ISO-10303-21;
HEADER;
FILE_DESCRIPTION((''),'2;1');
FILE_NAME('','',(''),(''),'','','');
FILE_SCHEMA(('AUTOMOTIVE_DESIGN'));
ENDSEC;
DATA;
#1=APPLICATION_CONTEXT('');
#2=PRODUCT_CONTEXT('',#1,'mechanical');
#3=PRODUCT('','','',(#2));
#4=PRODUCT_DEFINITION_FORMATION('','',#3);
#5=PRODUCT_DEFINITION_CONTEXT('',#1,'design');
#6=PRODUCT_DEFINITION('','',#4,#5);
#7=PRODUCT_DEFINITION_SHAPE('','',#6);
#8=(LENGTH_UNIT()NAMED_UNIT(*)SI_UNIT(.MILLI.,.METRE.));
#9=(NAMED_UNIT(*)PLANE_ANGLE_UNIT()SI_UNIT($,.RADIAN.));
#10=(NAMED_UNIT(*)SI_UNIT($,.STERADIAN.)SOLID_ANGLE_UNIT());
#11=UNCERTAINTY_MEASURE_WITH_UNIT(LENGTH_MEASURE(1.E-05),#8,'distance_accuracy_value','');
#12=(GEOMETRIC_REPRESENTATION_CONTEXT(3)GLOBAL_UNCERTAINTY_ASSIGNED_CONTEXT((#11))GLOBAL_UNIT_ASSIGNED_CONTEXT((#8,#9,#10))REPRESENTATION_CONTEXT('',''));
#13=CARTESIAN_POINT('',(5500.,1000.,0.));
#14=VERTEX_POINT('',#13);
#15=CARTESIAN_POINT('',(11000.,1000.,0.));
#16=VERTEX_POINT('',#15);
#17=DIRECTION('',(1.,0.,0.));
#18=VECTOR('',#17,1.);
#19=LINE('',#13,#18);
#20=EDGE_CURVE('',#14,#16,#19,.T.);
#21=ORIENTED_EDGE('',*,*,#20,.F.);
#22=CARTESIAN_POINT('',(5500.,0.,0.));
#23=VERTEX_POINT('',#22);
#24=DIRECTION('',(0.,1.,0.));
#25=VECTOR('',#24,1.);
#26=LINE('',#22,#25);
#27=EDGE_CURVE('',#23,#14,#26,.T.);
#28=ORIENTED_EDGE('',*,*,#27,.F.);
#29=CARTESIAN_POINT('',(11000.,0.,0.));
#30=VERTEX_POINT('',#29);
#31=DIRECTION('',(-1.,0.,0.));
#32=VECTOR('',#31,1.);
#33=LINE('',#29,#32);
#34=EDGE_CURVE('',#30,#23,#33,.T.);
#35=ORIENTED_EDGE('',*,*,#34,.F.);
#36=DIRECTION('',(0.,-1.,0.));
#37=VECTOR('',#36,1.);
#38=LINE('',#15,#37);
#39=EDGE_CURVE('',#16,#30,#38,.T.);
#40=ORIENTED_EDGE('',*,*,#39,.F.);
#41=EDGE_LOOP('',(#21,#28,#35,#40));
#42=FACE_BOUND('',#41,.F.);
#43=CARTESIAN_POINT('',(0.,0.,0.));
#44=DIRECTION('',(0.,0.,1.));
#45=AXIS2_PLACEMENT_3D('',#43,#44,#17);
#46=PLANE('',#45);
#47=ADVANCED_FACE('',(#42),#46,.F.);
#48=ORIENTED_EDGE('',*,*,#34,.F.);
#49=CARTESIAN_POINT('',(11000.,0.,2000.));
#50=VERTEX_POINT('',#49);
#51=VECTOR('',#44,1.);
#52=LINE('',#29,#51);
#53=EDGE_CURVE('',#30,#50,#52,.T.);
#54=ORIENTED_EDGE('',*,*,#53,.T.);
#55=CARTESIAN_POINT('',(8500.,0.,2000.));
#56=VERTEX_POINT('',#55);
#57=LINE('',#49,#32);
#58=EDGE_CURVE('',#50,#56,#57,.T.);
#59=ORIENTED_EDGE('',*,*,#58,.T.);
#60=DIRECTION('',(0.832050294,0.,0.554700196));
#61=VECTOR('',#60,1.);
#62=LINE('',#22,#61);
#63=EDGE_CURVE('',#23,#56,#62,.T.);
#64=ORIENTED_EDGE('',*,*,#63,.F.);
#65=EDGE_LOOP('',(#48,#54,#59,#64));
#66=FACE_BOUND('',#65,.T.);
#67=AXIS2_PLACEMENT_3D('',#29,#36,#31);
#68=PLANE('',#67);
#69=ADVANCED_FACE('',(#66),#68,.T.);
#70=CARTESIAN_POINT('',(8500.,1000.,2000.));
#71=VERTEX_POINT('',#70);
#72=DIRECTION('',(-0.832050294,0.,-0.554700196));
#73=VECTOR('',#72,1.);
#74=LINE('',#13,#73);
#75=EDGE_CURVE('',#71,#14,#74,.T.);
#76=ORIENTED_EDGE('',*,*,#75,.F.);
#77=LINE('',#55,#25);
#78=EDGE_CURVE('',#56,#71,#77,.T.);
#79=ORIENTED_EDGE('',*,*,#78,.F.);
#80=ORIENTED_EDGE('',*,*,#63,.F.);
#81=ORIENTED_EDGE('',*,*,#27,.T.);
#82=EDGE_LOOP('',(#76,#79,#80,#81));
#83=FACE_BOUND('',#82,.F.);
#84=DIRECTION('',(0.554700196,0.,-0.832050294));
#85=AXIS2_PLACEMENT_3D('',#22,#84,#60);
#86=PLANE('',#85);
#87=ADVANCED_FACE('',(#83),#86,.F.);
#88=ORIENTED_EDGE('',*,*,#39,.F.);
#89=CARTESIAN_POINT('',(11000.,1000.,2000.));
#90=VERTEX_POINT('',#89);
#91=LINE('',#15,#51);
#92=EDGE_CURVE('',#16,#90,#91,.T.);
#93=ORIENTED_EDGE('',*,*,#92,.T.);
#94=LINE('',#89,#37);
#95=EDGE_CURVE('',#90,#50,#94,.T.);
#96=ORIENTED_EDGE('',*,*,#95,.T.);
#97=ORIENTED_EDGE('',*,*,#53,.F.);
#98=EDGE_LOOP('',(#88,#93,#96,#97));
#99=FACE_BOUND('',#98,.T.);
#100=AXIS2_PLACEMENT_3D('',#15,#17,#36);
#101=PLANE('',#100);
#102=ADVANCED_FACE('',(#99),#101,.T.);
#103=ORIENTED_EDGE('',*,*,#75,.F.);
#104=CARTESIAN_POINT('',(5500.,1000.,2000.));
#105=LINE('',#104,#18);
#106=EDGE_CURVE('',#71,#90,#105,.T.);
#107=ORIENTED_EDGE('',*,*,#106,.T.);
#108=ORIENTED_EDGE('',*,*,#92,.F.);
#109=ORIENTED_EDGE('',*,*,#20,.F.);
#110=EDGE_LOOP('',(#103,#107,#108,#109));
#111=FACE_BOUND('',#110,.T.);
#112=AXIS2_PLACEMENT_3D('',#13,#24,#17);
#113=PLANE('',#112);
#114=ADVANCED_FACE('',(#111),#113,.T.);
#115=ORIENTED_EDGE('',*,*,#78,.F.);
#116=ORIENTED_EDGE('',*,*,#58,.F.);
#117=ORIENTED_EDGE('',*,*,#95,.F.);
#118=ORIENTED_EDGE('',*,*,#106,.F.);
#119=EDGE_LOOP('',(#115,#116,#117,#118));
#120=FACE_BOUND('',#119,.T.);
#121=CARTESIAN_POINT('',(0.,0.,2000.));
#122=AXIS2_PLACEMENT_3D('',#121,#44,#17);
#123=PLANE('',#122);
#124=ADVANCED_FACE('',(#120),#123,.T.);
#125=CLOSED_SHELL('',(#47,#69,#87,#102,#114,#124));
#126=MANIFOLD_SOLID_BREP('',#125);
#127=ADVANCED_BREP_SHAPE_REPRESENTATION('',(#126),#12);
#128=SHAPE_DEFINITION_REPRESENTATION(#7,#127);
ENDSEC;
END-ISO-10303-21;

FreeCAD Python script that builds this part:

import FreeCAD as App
import Part
import Sketcher

V = App.Vector


def add_polygon(sketch, points):
    """Adds a closed chain of lines whose ends are joined by coincident constraints."""
    first, n = sketch.GeometryCount, len(points)
    for a, b in zip(points, points[1:] + points[:1]):
        sketch.addGeometry(Part.LineSegment(App.Vector(*a, 0), App.Vector(*b, 0)), False)
    for i in range(n):
        sketch.addConstraint(Sketcher.Constraint("Coincident", first + i, 2, first + (i + 1) % n, 1))

doc = App.newDocument("Part")
params = doc.addObject("Spreadsheet::Sheet", "Params")
for row, (alias, value) in enumerate([
    ("sketch1_width", "5500 mm"),
    ("sketch1_height", "1000 mm"),
    ("pad1_length", "2000 mm"),
    ("sketch2_width", "3000 mm"),
    ("sketch2_height", "2000 mm"),
], start=1):
    params.set(f"A{row}", alias)
    params.set(f"B{row}", "=" + value)
    params.setAlias(f"B{row}", alias)

body = doc.addObject("PartDesign::Body", "Body")

sketch1 = body.newObject("Sketcher::SketchObject", "Sketch")
sketch1.AttachmentSupport = (doc.getObject("XY_Plane"), [""])
sketch1.MapMode = "FlatFace"
add_polygon(sketch1, [(11000, 1000), (5500, 1000), (5500, 0), (11000, 0)])
sketch1.addConstraint([
    Sketcher.Constraint("Horizontal", 0),
    Sketcher.Constraint("Vertical", 1),
    Sketcher.Constraint("Horizontal", 2),
    Sketcher.Constraint("Vertical", 3),
    Sketcher.Constraint("PointOnObject", 1, 2, -1),
    Sketcher.Constraint("DistanceX", 0, 2, 0, 1, 5500.0),
    Sketcher.Constraint("DistanceY", 1, 2, 1, 1, 1000.0),
    Sketcher.Constraint("DistanceX", -1, 1, 0, 2, 5500.0),
])
sketch1.setExpression("Constraints[9]", "Params.sketch1_width")
sketch1.setExpression("Constraints[10]", "Params.sketch1_height")
pad1 = body.newObject("PartDesign::Pad", "Pad")
pad1.Profile = sketch1
pad1.setExpression("Length", "Params.pad1_length")

sketch2 = body.newObject("Sketcher::SketchObject", "Sketch001")
sketch2.AttachmentSupport = (doc.getObject("XZ_Plane"), [""])
sketch2.MapMode = "FlatFace"
add_polygon(sketch2, [(5500, 2000), (5500, 0), (8500, 2000)])
sketch2.addConstraint([
    Sketcher.Constraint("Vertical", 0),
    Sketcher.Constraint("Horizontal", 2),
    Sketcher.Constraint("PointOnObject", 0, 2, -1),
    Sketcher.Constraint("DistanceX", 2, 2, 2, 1, 3000.0),
    Sketcher.Constraint("DistanceY", 0, 2, 0, 1, 2000.0),
    Sketcher.Constraint("DistanceX", -1, 1, 0, 2, 5500.0),
])
sketch2.setExpression("Constraints[6]", "Params.sketch2_width")
sketch2.setExpression("Constraints[7]", "Params.sketch2_height")
pocket1 = body.newObject("PartDesign::Pocket", "Pocket")
pocket1.Profile = sketch2
pocket1.Type = "ThroughAll"

doc.recompute()
